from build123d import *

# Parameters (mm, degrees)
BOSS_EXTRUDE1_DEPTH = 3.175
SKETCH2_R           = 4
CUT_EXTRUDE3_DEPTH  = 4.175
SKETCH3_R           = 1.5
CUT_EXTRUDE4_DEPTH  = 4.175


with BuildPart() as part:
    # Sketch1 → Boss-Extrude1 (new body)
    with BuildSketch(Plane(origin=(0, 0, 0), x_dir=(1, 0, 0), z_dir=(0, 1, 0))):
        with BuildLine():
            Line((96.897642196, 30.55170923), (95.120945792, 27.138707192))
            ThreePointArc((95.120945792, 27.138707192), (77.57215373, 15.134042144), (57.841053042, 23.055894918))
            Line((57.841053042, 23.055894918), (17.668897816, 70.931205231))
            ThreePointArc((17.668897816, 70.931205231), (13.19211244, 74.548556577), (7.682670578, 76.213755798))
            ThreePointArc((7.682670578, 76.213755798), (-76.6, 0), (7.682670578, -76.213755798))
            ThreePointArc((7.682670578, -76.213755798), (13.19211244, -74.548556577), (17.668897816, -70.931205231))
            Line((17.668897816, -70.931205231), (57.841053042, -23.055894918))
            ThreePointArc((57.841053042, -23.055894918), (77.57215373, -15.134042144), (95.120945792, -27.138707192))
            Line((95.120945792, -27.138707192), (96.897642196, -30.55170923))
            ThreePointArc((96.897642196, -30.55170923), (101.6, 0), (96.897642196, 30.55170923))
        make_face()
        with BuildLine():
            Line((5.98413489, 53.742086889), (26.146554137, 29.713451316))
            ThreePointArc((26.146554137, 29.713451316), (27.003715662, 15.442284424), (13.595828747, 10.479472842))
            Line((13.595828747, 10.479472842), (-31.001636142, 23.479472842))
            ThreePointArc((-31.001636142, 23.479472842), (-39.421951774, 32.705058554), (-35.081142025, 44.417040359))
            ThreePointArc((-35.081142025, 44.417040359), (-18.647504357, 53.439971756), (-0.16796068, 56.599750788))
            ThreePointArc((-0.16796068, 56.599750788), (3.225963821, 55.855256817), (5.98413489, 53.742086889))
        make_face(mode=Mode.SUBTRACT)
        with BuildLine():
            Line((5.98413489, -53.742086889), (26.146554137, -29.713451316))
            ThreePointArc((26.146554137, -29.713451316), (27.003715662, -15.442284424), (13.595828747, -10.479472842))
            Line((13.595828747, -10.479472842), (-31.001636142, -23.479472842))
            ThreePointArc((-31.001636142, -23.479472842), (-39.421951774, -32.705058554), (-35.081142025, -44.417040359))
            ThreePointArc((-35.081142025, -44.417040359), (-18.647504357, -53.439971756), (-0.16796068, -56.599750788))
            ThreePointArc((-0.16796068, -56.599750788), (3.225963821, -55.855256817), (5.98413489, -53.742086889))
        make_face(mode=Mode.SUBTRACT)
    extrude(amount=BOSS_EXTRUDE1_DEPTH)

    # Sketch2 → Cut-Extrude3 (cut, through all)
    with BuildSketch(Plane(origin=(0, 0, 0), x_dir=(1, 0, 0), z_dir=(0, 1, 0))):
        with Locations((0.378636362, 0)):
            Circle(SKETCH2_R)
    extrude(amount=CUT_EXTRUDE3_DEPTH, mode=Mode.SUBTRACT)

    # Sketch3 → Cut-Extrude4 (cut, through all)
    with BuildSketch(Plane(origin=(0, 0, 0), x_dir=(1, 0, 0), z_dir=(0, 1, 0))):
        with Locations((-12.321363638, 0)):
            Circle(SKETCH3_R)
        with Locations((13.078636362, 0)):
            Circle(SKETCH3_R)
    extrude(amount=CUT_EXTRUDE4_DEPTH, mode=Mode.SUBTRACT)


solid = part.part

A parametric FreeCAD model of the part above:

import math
import FreeCAD as App
import Part
import Sketcher

V = App.Vector
Q = App.Units.Quantity

doc = App.newDocument("Part")
body = doc.addObject("PartDesign::Body", "Body")

# Sketch on XZ plane
sketch1 = body.newObject("Sketcher::SketchObject", "Sketch")
sketch1.AttachmentSupport = (doc.getObject("XZ_Plane"), [""])
sketch1.MapMode = "FlatFace"
sketch1.addGeometry(Part.LineSegment(V(96.897642, -30.551709, 0), V(95.120946, -27.138707, 0)), False)
sketch1.addGeometry(Part.ArcOfCircle(Part.Circle(V(75.116975, -37.552115, 0), V(0, 0, 1), 22.552115), math.radians(27.5), math.radians(140)), False)
sketch1.addGeometry(Part.LineSegment(V(57.841053, -23.055895, 0), V(17.668898, -70.931205, 0)), False)
sketch1.addGeometry(Part.ArcOfCircle(Part.Circle(V(6.178231, -61.289391, 0), V(0, 0, 1), 15), math.radians(-84.243787), math.radians(-40)), False)
sketch1.addGeometry(Part.ArcOfCircle(Part.Circle(V(0, 0, 0), V(0, 0, 1), 76.6), math.radians(84.243787), math.radians(275.756213)), False)
sketch1.addGeometry(Part.ArcOfCircle(Part.Circle(V(6.178231, 61.289391, 0), V(0, 0, 1), 15), math.radians(40), math.radians(84.243787)), False)
sketch1.addGeometry(Part.LineSegment(V(17.668898, 70.931205, 0), V(57.841053, 23.055895, 0)), False)
sketch1.addGeometry(Part.ArcOfCircle(Part.Circle(V(75.116975, 37.552115, 0), V(0, 0, 1), 22.552115), math.radians(-140), math.radians(-27.5)), False)
sketch1.addGeometry(Part.LineSegment(V(95.120946, 27.138707, 0), V(96.897642, 30.551709, 0)), False)
sketch1.addGeometry(Part.ArcOfCircle(Part.Circle(V(0, 0, 0), V(0, 0, 1), 101.6), math.radians(-17.5), math.radians(17.5)), False)
sketch1.addGeometry(Part.LineSegment(V(26.146554, 29.713451, 0), V(5.984135, 53.742087, 0)), False)
sketch1.addGeometry(Part.ArcOfCircle(Part.Circle(V(-0.144221, 48.599786, 0), V(0, 0, 1), 8), math.radians(40), math.radians(90.170026)), False)
sketch1.addGeometry(Part.ArcOfCircle(Part.Circle(V(0, 0, 0), V(0, 0, 1), 56.6), math.radians(90.170026), math.radians(128.302127)), False)
sketch1.addGeometry(Part.ArcOfCircle(Part.Circle(V(-27.643444, 35, 0), V(0, 0, 1), 12), math.radians(128.302127), math.radians(253.748787)), False)
sketch1.addGeometry(Part.LineSegment(V(-31.001636, 23.479473, 0), V(13.595829, 10.479473, 0)), False)
sketch1.addGeometry(Part.ArcOfCircle(Part.Circle(V(16.954021, 22, 0), V(0, 0, 1), 12), math.radians(-106.251213), math.radians(40)), False)
sketch1.addGeometry(Part.ArcOfCircle(Part.Circle(V(-0.144221, -48.599786, 0), V(0, 0, 1), 8), math.radians(-90.170026), math.radians(-40)), False)
sketch1.addGeometry(Part.LineSegment(V(5.984135, -53.742087, 0), V(26.146554, -29.713451, 0)), False)
sketch1.addGeometry(Part.ArcOfCircle(Part.Circle(V(16.954021, -22, 0), V(0, 0, 1), 12), math.radians(-40), math.radians(106.251213)), False)
sketch1.addGeometry(Part.LineSegment(V(13.595829, -10.479473, 0), V(-31.001636, -23.479473, 0)), False)
sketch1.addGeometry(Part.ArcOfCircle(Part.Circle(V(-27.643444, -35, 0), V(0, 0, 1), 12), math.radians(106.251213), math.radians(231.697873)), False)
sketch1.addGeometry(Part.ArcOfCircle(Part.Circle(V(0, 0, 0), V(0, 0, 1), 56.6), math.radians(-128.302127), math.radians(-90.170026)), False)
sketch1.addConstraint(Sketcher.Constraint("Tangent", 0, 2, 1, 1))
sketch1.addConstraint(Sketcher.Constraint("Tangent", 1, 2, 2, 1))
sketch1.addConstraint(Sketcher.Constraint("Tangent", 2, 2, 3, 2))
sketch1.addConstraint(Sketcher.Constraint("Tangent", 3, 1, 4, 2))
sketch1.addConstraint(Sketcher.Constraint("Tangent", 4, 1, 5, 2))
sketch1.addConstraint(Sketcher.Constraint("Tangent", 5, 1, 6, 1))
sketch1.addConstraint(Sketcher.Constraint("Tangent", 6, 2, 7, 1))
sketch1.addConstraint(Sketcher.Constraint("Tangent", 7, 2, 8, 1))
sketch1.addConstraint(Sketcher.Constraint("Coincident", 8, 2, 9, 2))
sketch1.addConstraint(Sketcher.Constraint("Coincident", 9, 1, 0, 1))
sketch1.addConstraint(Sketcher.Constraint("Tangent", 10, 2, 11, 1))
sketch1.addConstraint(Sketcher.Constraint("Tangent", 11, 2, 12, 1))
sketch1.addConstraint(Sketcher.Constraint("Tangent", 12, 2, 13, 1))
sketch1.addConstraint(Sketcher.Constraint("Tangent", 13, 2, 14, 1))
sketch1.addConstraint(Sketcher.Constraint("Tangent", 14, 2, 15, 1))
sketch1.addConstraint(Sketcher.Constraint("Tangent", 15, 2, 10, 1))
sketch1.addConstraint(Sketcher.Constraint("Tangent", 16, 2, 17, 1))
sketch1.addConstraint(Sketcher.Constraint("Tangent", 17, 2, 18, 1))
sketch1.addConstraint(Sketcher.Constraint("Tangent", 18, 2, 19, 1))
sketch1.addConstraint(Sketcher.Constraint("Tangent", 19, 2, 20, 1))
sketch1.addConstraint(Sketcher.Constraint("Tangent", 20, 2, 21, 1))
sketch1.addConstraint(Sketcher.Constraint("Tangent", 21, 2, 16, 1))
sketch1.addConstraint(Sketcher.Constraint("Coincident", 4, 3, -1, 1))
sketch1.addConstraint(Sketcher.Constraint("Coincident", 9, 3, -1, 1))
sketch1.addConstraint(Sketcher.Constraint("Coincident", 12, 3, -1, 1))
sketch1.addConstraint(Sketcher.Constraint("Coincident", 21, 3, -1, 1))
sketch1.addConstraint(Sketcher.Constraint("Equal", 3, 5))
sketch1.addConstraint(Sketcher.Constraint("Equal", 1, 7))
sketch1.addConstraint(Sketcher.Constraint("Equal", 13, 15))
sketch1.addConstraint(Sketcher.Constraint("Equal", 11, 16))
sketch1.addConstraint(Sketcher.Constraint("Equal", 15, 18))
sketch1.addConstraint(Sketcher.Constraint("Equal", 18, 20))
sketch1.addConstraint(Sketcher.Constraint("Equal", 12, 21))
sketch1.addConstraint(Sketcher.Constraint("Symmetric", 1, 3, 7, 3, -1))
sketch1.addConstraint(Sketcher.Constraint("Symmetric", 15, 3, 18, 3, -1))
sketch1.addConstraint(Sketcher.Constraint("Parallel", 6, 10))
sketch1.addConstraint(Sketcher.Constraint("Parallel", 2, 17))
sketch1.addConstraint(Sketcher.Constraint("Vertical", 3, 3, 5, 3))
sketch1.addConstraint(Sketcher.Constraint("Vertical", 13, 3, 20, 3))
sketch1.addConstraint(Sketcher.Constraint("Vertical", 0, 2, 7, 2))
sketch1.addConstraint(Sketcher.Constraint("Radius", 3, 15.0))
sketch1.addConstraint(Sketcher.Constraint("Radius", 11, 8.0))
sketch1.addConstraint(Sketcher.Constraint("Radius", 13, 12.0))
sketch1.addConstraint(Sketcher.Constraint("Radius", 4, 76.6))
sketch1.addConstraint(Sketcher.Constraint("Radius", 9, 101.6))
sketch1.addConstraint(Sketcher.Constraint("Radius", 12, 56.6))
sketch1.addConstraint(Sketcher.Constraint("Angle", 2, Q("-130 deg")))
sketch1.addConstraint(Sketcher.Constraint("DistanceY", -1, 1, 13, 3, 35.0))
sketch1.addConstraint(Sketcher.Constraint("DistanceY", -1, 1, 15, 3, 22.0))
sketch1.addConstraint(Sketcher.Constraint("Angle", 0, Q("117.5 deg")))
sketch1.addConstraint(Sketcher.Constraint("Radius", 1, 22.552115))
sketch1.addConstraint(Sketcher.Constraint("DistanceX", 15, 2, 6, 2, 31.694499))
sketch1.addConstraint(Sketcher.Constraint("Distance", 2, 62.496779))
sketch1.addConstraint(Sketcher.Constraint("DistanceX", -1, 1, 3, 3, 6.178231))
pad1 = body.newObject("PartDesign::Pad", "Pad")
pad1.Profile = sketch1
pad1.Length = 3.175
pad1.Reversed = True

# Sketch on XZ plane
sketch2 = body.newObject("Sketcher::SketchObject", "Sketch001")
sketch2.AttachmentSupport = (doc.getObject("XZ_Plane"), [""])
sketch2.MapMode = "FlatFace"
sketch2.addGeometry(Part.Circle(V(0.378636, 0, 0), V(0, 0, 1), 4), False)
sketch2.addConstraint(Sketcher.Constraint("PointOnObject", 0, 3, -1))
sketch2.addConstraint(Sketcher.Constraint("Diameter", 0, 8.0))
sketch2.addConstraint(Sketcher.Constraint("DistanceX", -1, 1, 0, 3, 0.378636))
pocket1 = body.newObject("PartDesign::Pocket", "Pocket")
pocket1.Profile = sketch2
pocket1.Type = "ThroughAll"

# Sketch on XZ plane
sketch3 = body.newObject("Sketcher::SketchObject", "Sketch002")
sketch3.AttachmentSupport = (doc.getObject("XZ_Plane"), [""])
sketch3.MapMode = "FlatFace"
sketch3.addGeometry(Part.Circle(V(-12.321364, 0, 0), V(0, 0, 1), 1.5), False)
sketch3.addGeometry(Part.Circle(V(13.078636, 0, 0), V(0, 0, 1), 1.5), False)
sketch3.addConstraint(Sketcher.Constraint("Equal", 0, 1))
sketch3.addConstraint(Sketcher.Constraint("PointOnObject", 0, 3, -1))
sketch3.addConstraint(Sketcher.Constraint("PointOnObject", 1, 3, -1))
sketch3.addConstraint(Sketcher.Constraint("Diameter", 0, 3.0))
sketch3.addConstraint(Sketcher.Constraint("DistanceX", 0, 3, 1, 3, 25.4))
sketch3.addConstraint(Sketcher.Constraint("DistanceX", 0, 3, -1, 1, 12.321364))
pocket2 = body.newObject("PartDesign::Pocket", "Pocket001")
pocket2.Profile = sketch3
pocket2.Type = "ThroughAll"

doc.recompute()
